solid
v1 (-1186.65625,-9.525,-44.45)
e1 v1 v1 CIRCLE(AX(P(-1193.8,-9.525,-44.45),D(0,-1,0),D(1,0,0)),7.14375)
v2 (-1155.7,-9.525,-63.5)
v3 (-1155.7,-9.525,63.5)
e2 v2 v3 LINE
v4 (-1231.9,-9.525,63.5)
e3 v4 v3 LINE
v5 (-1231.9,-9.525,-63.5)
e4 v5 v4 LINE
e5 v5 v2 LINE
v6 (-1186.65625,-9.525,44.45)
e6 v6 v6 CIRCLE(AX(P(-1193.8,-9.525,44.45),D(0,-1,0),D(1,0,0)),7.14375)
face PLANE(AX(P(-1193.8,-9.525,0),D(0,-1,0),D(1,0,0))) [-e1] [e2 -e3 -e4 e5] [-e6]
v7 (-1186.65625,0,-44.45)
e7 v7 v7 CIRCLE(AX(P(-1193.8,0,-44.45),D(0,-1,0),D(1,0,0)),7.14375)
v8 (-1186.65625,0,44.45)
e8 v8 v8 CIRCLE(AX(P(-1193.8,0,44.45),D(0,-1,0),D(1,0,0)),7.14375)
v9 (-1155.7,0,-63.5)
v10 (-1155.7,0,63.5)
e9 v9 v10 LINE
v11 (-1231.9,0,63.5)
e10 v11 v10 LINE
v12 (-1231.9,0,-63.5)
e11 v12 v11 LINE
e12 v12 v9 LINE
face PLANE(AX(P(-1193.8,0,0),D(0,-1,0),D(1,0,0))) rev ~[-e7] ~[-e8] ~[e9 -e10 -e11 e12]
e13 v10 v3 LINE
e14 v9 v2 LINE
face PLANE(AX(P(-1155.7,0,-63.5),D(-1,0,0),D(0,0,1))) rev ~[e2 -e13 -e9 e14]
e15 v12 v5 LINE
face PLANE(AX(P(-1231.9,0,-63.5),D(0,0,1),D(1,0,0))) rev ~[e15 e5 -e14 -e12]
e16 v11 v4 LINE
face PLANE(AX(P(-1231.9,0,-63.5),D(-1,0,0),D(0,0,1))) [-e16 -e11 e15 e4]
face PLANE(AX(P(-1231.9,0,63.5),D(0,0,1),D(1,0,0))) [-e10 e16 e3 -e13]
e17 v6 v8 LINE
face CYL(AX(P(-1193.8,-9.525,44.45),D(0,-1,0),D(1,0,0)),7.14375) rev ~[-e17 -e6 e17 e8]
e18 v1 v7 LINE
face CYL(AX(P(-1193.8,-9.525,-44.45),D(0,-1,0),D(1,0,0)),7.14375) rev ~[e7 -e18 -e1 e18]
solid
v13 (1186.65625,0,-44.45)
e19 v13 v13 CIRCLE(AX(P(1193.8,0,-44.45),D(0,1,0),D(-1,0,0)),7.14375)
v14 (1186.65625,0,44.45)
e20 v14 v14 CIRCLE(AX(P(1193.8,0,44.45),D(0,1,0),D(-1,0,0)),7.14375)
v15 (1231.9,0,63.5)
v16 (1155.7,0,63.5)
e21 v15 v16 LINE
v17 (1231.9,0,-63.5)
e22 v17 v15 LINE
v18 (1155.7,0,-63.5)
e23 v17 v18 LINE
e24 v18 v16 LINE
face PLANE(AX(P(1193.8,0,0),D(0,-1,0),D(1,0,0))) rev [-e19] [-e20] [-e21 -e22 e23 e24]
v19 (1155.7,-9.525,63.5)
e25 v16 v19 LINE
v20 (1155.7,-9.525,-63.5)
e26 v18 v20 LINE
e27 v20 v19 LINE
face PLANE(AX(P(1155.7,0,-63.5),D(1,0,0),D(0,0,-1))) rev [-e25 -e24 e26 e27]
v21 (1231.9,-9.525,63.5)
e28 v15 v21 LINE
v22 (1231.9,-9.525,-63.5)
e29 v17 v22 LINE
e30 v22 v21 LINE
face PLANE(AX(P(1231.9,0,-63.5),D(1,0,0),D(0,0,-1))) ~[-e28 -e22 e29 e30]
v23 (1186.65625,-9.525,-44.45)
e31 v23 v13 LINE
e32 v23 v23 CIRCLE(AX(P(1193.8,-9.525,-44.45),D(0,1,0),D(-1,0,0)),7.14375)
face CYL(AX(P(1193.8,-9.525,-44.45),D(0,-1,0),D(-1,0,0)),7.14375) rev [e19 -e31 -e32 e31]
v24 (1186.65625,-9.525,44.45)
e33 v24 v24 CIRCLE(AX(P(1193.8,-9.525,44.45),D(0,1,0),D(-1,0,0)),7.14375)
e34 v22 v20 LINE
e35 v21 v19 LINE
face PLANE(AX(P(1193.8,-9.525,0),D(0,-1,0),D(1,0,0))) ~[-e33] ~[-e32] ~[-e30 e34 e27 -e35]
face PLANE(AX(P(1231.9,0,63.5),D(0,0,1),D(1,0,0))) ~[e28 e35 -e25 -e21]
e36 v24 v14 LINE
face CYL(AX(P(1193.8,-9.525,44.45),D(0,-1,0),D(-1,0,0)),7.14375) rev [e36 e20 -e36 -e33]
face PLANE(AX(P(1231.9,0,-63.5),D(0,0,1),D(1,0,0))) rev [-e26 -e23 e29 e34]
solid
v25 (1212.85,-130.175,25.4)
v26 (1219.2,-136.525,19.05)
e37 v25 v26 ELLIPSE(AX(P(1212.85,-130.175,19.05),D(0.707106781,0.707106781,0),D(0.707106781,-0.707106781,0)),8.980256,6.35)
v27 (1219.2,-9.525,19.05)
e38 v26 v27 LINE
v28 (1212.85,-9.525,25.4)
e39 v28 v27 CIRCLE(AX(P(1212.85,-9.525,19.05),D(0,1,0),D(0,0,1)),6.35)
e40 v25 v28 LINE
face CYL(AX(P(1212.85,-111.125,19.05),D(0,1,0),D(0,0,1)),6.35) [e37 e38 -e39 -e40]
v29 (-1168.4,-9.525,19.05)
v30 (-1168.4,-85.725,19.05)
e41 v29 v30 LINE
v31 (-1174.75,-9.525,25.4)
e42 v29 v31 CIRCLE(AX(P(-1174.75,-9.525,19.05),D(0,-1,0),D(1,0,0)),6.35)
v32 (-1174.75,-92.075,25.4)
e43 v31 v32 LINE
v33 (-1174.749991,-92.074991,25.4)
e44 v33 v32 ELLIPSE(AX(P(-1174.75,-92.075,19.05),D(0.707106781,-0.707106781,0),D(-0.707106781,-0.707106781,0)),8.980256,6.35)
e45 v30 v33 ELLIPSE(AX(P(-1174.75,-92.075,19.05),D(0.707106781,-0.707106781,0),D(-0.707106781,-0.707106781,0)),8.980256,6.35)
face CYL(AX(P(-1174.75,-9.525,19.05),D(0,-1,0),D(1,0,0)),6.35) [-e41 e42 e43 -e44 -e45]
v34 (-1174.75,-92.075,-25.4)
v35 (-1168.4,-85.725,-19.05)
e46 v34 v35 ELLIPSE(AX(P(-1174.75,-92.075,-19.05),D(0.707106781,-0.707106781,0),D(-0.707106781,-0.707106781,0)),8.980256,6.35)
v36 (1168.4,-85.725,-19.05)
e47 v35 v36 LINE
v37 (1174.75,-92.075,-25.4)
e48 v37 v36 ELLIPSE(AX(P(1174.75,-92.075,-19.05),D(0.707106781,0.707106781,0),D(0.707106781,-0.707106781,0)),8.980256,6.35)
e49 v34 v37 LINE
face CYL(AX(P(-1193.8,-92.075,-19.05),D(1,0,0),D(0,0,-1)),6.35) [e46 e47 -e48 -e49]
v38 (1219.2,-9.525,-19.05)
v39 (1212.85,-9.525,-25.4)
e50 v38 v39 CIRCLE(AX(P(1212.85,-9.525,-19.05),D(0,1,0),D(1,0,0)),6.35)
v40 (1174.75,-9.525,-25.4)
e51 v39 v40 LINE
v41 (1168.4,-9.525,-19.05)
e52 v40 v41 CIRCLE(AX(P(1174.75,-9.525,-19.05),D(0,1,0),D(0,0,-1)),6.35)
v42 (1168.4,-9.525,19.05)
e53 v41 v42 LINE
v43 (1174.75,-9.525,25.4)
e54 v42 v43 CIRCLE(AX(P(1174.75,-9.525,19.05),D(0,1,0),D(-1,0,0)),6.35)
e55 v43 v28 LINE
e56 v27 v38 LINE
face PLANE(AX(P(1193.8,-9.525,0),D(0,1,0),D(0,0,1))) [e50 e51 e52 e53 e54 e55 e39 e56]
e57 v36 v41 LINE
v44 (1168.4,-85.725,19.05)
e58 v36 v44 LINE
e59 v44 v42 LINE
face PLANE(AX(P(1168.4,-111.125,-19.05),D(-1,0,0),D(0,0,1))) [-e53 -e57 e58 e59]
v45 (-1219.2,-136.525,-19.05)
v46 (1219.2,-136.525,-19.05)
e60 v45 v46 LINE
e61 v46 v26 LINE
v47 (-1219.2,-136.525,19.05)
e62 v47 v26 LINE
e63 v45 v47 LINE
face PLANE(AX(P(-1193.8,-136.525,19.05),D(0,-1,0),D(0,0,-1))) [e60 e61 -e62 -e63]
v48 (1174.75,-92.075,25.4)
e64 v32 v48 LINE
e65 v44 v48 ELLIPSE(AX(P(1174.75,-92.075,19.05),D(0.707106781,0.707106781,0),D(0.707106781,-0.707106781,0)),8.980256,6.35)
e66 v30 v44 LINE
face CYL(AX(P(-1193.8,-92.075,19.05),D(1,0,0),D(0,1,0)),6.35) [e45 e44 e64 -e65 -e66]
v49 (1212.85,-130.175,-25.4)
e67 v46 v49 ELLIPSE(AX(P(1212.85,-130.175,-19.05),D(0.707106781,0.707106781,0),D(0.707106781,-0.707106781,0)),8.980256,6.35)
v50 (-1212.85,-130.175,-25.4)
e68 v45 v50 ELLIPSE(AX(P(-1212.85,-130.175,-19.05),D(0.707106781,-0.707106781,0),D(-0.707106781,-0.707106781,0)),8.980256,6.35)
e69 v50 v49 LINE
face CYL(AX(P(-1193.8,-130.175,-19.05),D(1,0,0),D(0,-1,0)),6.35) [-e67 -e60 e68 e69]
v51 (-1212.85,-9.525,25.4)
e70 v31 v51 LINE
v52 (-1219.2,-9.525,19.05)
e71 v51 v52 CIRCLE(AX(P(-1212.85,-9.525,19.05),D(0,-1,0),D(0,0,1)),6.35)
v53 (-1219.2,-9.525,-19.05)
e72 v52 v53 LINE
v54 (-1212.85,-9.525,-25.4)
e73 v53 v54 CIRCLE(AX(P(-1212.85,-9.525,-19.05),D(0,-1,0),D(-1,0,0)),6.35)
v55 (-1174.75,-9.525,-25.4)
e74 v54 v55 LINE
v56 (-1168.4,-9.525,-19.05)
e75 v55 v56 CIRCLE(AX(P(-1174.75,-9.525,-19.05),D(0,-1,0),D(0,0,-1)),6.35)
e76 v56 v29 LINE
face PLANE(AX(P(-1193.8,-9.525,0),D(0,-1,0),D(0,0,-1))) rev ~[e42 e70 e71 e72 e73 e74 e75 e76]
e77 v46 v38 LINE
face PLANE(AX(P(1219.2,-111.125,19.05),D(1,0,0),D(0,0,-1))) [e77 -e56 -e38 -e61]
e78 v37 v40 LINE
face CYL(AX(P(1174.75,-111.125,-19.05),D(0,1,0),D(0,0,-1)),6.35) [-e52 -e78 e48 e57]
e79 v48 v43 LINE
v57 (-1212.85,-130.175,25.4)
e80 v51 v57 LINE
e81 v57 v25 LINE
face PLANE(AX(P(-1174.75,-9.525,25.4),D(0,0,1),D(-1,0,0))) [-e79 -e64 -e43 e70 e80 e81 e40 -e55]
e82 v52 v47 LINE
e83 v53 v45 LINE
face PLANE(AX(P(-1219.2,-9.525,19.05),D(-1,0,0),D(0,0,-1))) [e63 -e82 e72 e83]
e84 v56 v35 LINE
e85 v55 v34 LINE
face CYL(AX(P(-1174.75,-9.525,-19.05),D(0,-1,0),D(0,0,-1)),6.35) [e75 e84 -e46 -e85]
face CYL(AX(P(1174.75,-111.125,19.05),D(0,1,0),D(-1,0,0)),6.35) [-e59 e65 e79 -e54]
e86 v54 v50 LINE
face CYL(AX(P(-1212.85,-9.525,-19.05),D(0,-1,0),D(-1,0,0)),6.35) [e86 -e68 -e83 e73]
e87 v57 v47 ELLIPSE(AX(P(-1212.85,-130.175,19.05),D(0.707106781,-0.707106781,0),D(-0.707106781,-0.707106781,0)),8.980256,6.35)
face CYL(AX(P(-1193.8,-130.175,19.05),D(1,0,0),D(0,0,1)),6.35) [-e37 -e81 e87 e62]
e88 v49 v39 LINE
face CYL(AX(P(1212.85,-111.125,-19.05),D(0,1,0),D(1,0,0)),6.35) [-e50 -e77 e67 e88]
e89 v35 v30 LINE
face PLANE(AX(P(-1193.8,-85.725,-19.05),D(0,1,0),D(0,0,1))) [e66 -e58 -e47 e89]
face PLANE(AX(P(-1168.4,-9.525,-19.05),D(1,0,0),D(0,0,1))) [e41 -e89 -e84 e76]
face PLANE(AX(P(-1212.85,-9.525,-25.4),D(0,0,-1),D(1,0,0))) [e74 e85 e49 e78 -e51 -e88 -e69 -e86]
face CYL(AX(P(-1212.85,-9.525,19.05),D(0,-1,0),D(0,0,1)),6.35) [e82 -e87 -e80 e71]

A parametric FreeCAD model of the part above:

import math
import FreeCAD as App
import Part
import Sketcher
from FreeCAD import Vector
Q = App.Units.Quantity

doc = App.newDocument("Part")
params = doc.addObject("Spreadsheet::Sheet", "Params")
for row, (alias, value) in enumerate([
    ("sketch1_width", "3 in"),
    ("sketch1_height", "5 in"),
    ("pad1_length", "0.375 in"),
    ("sketch2_diameter", "0.5625 in"),
    ("pocket1_length", "1 in"),
    ("sketch3_radius", "0.25 in"),
    ("sketch3_width", "1.5 in"),
    ("sketch4_width", "94 in"),
    ("sketch4_height", "4 in"),
], start=1):
    params.set(f"A{row}", alias)
    params.set(f"B{row}", "=" + value)
    params.setAlias(f"B{row}", alias)

body = doc.addObject("PartDesign::Body", "Body")

# Sketch on XZ plane
sketch1 = doc.addObject("Sketcher::SketchObject", "Sketch")
body.addObject(sketch1)
sketch1.AttachmentSupport = (doc.XZ_Plane, [""])
sketch1.MapMode = "FlatFace"
sketch1.addGeometry([
    Part.LineSegment(Vector(-1231.9, 63.5, 0), Vector(-1231.9, -63.5, 0)),
    Part.LineSegment(Vector(-1231.9, -63.5, 0), Vector(-1155.7, -63.5, 0)),
    Part.LineSegment(Vector(-1155.7, -63.5, 0), Vector(-1155.7, 63.5, 0)),
    Part.LineSegment(Vector(-1155.7, 63.5, 0), Vector(-1231.9, 63.5, 0)),
], False)
sketch1.addConstraint([
    Sketcher.Constraint("Coincident", 0, 2, 1, 1),
    Sketcher.Constraint("Coincident", 1, 2, 2, 1),
    Sketcher.Constraint("Coincident", 2, 2, 3, 1),
    Sketcher.Constraint("Coincident", 3, 2, 0, 1),
    Sketcher.Constraint("Vertical", 0),
    Sketcher.Constraint("Horizontal", 1),
    Sketcher.Constraint("Vertical", 2),
    Sketcher.Constraint("Horizontal", 3),
    Sketcher.Constraint("DistanceX", 1, 1, 1, 2, Q("3 in")),
    Sketcher.Constraint("DistanceY", 0, 2, 0, 1, Q("5 in")),
    Sketcher.Constraint("DistanceX", 0, 2, -1, 1, Q("48.5 in")),
    Sketcher.Constraint("DistanceY", 0, 2, -1, 1, Q("2.5 in")),
])
sketch1.setExpression("Constraints[8]", "Params.sketch1_width")
sketch1.setExpression("Constraints[9]", "Params.sketch1_height")
pad1 = doc.addObject("PartDesign::Pad", "Pad")
body.addObject(pad1)
pad1.Profile = sketch1
pad1.setExpression("Length", "Params.pad1_length")

# Sketch on XZ plane
sketch2 = doc.addObject("Sketcher::SketchObject", "Sketch001")
body.addObject(sketch2)
sketch2.AttachmentSupport = (doc.XZ_Plane, [""])
sketch2.MapMode = "FlatFace"
sketch2.AttachmentOffset = App.Placement(Vector(0, 0, 0.375 * 25.4), App.Rotation())
sketch2.addGeometry([
    Part.Circle(Vector(-1193.8, 44.45, 0), Vector(0, 0, 1), 7.14375),
    Part.Circle(Vector(-1193.8, -44.45, 0), Vector(0, 0, 1), 7.14375),
], False)
sketch2.addConstraint([
    Sketcher.Constraint("Equal", 0, 1),
    Sketcher.Constraint("Symmetric", 0, 3, 1, 3, -1),
    Sketcher.Constraint("Diameter", 0, Q("0.5625 in")),
    Sketcher.Constraint("DistanceX", 0, 3, -1, 1, Q("47 in")),
    Sketcher.Constraint("DistanceY", 1, 3, 0, 3, Q("3.5 in")),
])
sketch2.setExpression("Constraints[2]", "Params.sketch2_diameter")
pocket1 = doc.addObject("PartDesign::Pocket", "Pocket")
body.addObject(pocket1)
pocket1.Profile = sketch2
pocket1.setExpression("Length", "Params.pocket1_length")
body2 = doc.addObject("PartDesign::Body", "Body001")
doc.recompute()

mirroring = doc.addObject("Part::Mirroring", "Mirroring")
mirroring.Source = body
mirroring.Base = Vector(0, 0, 0)
mirroring.Normal = Vector(1, 0, 0)
body2.BaseFeature = mirroring
doc.recompute()
body3 = doc.addObject("PartDesign::Body", "Body002")

# Sketch on XZ plane
sketch3 = doc.addObject("Sketcher::SketchObject", "Sketch002")
body3.addObject(sketch3)
sketch3.AttachmentSupport = (doc.getObject("XZ_Plane002"), [""])
sketch3.MapMode = "FlatFace"
sketch3.AttachmentOffset = App.Placement(Vector(0, 0, 0.375 * 25.4), App.Rotation())
sketch3.addGeometry([
    Part.LineSegment(Vector(-1174.75, 25.4, 0), Vector(-1212.85, 25.4, 0)),  # 0
    Part.ArcOfCircle(Part.Circle(Vector(-1212.85, 19.05, 0), Vector(0, 0, 1), 6.35), math.radians(90), math.radians(180)),  # 1
    Part.LineSegment(Vector(-1219.2, 19.05, 0), Vector(-1219.2, -19.05, 0)),  # 2
    Part.ArcOfCircle(Part.Circle(Vector(-1212.85, -19.05, 0), Vector(0, 0, 1), 6.35), math.radians(180), math.radians(270)),  # 3
    Part.LineSegment(Vector(-1212.85, -25.4, 0), Vector(-1174.75, -25.4, 0)),  # 4
    Part.ArcOfCircle(Part.Circle(Vector(-1174.75, -19.05, 0), Vector(0, 0, 1), 6.35), math.radians(-90), math.radians(0)),  # 5
    Part.LineSegment(Vector(-1168.4, -19.05, 0), Vector(-1168.4, 19.05, 0)),  # 6
    Part.ArcOfCircle(Part.Circle(Vector(-1174.75, 19.05, 0), Vector(0, 0, 1), 6.35), math.radians(0), math.radians(90)),  # 7
], False)
sketch3.addConstraint([
    Sketcher.Constraint("Tangent", 0, 2, 1, 1),
    Sketcher.Constraint("Tangent", 1, 2, 2, 1),
    Sketcher.Constraint("Tangent", 2, 2, 3, 1),
    Sketcher.Constraint("Tangent", 3, 2, 4, 1),
    Sketcher.Constraint("Tangent", 4, 2, 5, 1),
    Sketcher.Constraint("Tangent", 5, 2, 6, 1),
    Sketcher.Constraint("Tangent", 6, 2, 7, 1),
    Sketcher.Constraint("Tangent", 7, 2, 0, 1),
    Sketcher.Constraint("Horizontal", 0),
    Sketcher.Constraint("Vertical", 2),
    Sketcher.Constraint("Horizontal", 4),
    Sketcher.Constraint("Vertical", 6),
    Sketcher.Constraint("Equal", 1, 3),
    Sketcher.Constraint("Equal", 3, 5),
    Sketcher.Constraint("Equal", 5, 7),
    Sketcher.Constraint("Equal", 4, 2),
    Sketcher.Constraint("Radius", 1, Q("0.25 in")),
    Sketcher.Constraint("DistanceX", 0, 2, 0, 1, Q("1.5 in")),
    Sketcher.Constraint("DistanceY", -1, 1, 0, 2, Q("1 in")),
    Sketcher.Constraint("DistanceX", 1, 2, -1, 1, Q("48 in")),
])
sketch3.setExpression("Constraints[16]", "Params.sketch3_radius")
sketch3.setExpression("Constraints[17]", "Params.sketch3_width")

# Sketch on XY plane
sketch4 = doc.addObject("Sketcher::SketchObject", "Sketch003")
body3.addObject(sketch4)
sketch4.AttachmentSupport = (doc.getObject("XY_Plane002"), [""])
sketch4.MapMode = "FlatFace"
sketch4.addGeometry([
    Part.LineSegment(Vector(-1193.8, -9.525, 0), Vector(-1193.8, -111.125, 0)),
    Part.LineSegment(Vector(-1193.8, -111.125, 0), Vector(1193.8, -111.125, 0)),
    Part.LineSegment(Vector(1193.8, -111.125, 0), Vector(1193.8, -9.525, 0)),
], False)
sketch4.addConstraint([
    Sketcher.Constraint("Coincident", 0, 2, 1, 1),
    Sketcher.Constraint("Coincident", 1, 2, 2, 1),
    Sketcher.Constraint("Vertical", 0),
    Sketcher.Constraint("Horizontal", 1),
    Sketcher.Constraint("Vertical", 2),
    Sketcher.Constraint("Symmetric", 0, 1, 2, 2, -2),
    Sketcher.Constraint("DistanceX", 1, 1, 1, 2, Q("94 in")),
    Sketcher.Constraint("DistanceY", 0, 2, 0, 1, Q("4 in")),
    Sketcher.Constraint("DistanceY", 0, 1, -1, 1, Q("0.375 in")),
])
sketch4.setExpression("Constraints[6]", "Params.sketch4_width")
sketch4.setExpression("Constraints[7]", "Params.sketch4_height")
doc.recompute()

additivepipe = doc.addObject("PartDesign::AdditivePipe", "AdditivePipe")
body3.addObject(additivepipe)
additivepipe.Profile = sketch3
additivepipe.Spine = (sketch4, ["Edge1", "Edge2", "Edge3"])
additivepipe.Transition = "Right corner"
mirroring.Visibility = False

doc.recompute()
